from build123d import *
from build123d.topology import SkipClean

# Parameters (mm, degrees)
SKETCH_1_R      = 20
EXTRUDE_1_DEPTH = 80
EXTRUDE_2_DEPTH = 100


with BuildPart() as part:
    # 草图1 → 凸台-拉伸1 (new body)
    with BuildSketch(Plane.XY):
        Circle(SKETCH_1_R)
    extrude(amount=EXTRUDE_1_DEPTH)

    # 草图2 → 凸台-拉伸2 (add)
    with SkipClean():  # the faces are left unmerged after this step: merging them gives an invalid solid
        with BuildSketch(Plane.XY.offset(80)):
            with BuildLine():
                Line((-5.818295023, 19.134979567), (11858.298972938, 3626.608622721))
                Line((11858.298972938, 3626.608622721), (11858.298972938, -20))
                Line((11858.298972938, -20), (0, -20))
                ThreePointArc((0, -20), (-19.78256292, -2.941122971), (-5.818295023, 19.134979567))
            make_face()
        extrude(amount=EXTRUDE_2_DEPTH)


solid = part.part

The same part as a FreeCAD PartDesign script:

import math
import FreeCAD as App
import Part
import Sketcher

doc = App.newDocument("Part")
body = doc.addObject("PartDesign::Body", "Body")

sketch1 = doc.addObject("Sketcher::SketchObject", "Sketch")
body.addObject(sketch1)
sketch1.AttachmentSupport = (doc.XY_Plane, [""])
sketch1.MapMode = "FlatFace"
sketch1.addGeometry(Part.Circle(App.Vector(0, 0, 0), App.Vector(0, 0, 1), 20), False)
sketch1.addConstraint([
    Sketcher.Constraint("Coincident", 0, 3, -1, 1),
    Sketcher.Constraint("Diameter", 0, 40.0),
])
pad1 = doc.addObject("PartDesign::Pad", "Pad")
body.addObject(pad1)
pad1.Profile = sketch1
pad1.Length = 80

sketch2 = doc.addObject("Sketcher::SketchObject", "Sketch001")
body.addObject(sketch2)
sketch2.AttachmentSupport = (doc.XY_Plane, [""])
sketch2.MapMode = "FlatFace"
sketch2.AttachmentOffset = App.Placement(App.Vector(0, 0, 80), App.Rotation())
sketch2.addGeometry([
    Part.LineSegment(App.Vector(11858.298973, 3626.608623, 0), App.Vector(-5.818295, 19.13498, 0)),
    Part.ArcOfCircle(Part.Circle(App.Vector(0, 0, 0), App.Vector(0, 0, 1), 20), math.radians(106.912729), math.radians(270)),
    Part.LineSegment(App.Vector(0, -20, 0), App.Vector(11858.298973, -20, 0)),
    Part.LineSegment(App.Vector(11858.298973, -20, 0), App.Vector(11858.298973, 3626.608623, 0)),
], False)
sketch2.addConstraint([
    Sketcher.Constraint("Tangent", 0, 2, 1, 1),
    Sketcher.Constraint("Tangent", 1, 2, 2, 1),
    Sketcher.Constraint("Coincident", 2, 2, 3, 1),
    Sketcher.Constraint("Coincident", 3, 2, 0, 1),
    Sketcher.Constraint("Horizontal", 2),
    Sketcher.Constraint("Vertical", 3),
    Sketcher.Constraint("Coincident", 1, 3, -1, 1),
    Sketcher.Constraint("Radius", 1, 20.0),
    Sketcher.Constraint("DistanceX", 2, 1, 2, 2, 11858.298973),
    Sketcher.Constraint("DistanceY", 3, 1, 3, 2, 3646.608623),
])
pad2 = doc.addObject("PartDesign::Pad", "Pad001")
body.addObject(pad2)
pad2.Profile = sketch2
pad2.Length = 100

doc.recompute()
